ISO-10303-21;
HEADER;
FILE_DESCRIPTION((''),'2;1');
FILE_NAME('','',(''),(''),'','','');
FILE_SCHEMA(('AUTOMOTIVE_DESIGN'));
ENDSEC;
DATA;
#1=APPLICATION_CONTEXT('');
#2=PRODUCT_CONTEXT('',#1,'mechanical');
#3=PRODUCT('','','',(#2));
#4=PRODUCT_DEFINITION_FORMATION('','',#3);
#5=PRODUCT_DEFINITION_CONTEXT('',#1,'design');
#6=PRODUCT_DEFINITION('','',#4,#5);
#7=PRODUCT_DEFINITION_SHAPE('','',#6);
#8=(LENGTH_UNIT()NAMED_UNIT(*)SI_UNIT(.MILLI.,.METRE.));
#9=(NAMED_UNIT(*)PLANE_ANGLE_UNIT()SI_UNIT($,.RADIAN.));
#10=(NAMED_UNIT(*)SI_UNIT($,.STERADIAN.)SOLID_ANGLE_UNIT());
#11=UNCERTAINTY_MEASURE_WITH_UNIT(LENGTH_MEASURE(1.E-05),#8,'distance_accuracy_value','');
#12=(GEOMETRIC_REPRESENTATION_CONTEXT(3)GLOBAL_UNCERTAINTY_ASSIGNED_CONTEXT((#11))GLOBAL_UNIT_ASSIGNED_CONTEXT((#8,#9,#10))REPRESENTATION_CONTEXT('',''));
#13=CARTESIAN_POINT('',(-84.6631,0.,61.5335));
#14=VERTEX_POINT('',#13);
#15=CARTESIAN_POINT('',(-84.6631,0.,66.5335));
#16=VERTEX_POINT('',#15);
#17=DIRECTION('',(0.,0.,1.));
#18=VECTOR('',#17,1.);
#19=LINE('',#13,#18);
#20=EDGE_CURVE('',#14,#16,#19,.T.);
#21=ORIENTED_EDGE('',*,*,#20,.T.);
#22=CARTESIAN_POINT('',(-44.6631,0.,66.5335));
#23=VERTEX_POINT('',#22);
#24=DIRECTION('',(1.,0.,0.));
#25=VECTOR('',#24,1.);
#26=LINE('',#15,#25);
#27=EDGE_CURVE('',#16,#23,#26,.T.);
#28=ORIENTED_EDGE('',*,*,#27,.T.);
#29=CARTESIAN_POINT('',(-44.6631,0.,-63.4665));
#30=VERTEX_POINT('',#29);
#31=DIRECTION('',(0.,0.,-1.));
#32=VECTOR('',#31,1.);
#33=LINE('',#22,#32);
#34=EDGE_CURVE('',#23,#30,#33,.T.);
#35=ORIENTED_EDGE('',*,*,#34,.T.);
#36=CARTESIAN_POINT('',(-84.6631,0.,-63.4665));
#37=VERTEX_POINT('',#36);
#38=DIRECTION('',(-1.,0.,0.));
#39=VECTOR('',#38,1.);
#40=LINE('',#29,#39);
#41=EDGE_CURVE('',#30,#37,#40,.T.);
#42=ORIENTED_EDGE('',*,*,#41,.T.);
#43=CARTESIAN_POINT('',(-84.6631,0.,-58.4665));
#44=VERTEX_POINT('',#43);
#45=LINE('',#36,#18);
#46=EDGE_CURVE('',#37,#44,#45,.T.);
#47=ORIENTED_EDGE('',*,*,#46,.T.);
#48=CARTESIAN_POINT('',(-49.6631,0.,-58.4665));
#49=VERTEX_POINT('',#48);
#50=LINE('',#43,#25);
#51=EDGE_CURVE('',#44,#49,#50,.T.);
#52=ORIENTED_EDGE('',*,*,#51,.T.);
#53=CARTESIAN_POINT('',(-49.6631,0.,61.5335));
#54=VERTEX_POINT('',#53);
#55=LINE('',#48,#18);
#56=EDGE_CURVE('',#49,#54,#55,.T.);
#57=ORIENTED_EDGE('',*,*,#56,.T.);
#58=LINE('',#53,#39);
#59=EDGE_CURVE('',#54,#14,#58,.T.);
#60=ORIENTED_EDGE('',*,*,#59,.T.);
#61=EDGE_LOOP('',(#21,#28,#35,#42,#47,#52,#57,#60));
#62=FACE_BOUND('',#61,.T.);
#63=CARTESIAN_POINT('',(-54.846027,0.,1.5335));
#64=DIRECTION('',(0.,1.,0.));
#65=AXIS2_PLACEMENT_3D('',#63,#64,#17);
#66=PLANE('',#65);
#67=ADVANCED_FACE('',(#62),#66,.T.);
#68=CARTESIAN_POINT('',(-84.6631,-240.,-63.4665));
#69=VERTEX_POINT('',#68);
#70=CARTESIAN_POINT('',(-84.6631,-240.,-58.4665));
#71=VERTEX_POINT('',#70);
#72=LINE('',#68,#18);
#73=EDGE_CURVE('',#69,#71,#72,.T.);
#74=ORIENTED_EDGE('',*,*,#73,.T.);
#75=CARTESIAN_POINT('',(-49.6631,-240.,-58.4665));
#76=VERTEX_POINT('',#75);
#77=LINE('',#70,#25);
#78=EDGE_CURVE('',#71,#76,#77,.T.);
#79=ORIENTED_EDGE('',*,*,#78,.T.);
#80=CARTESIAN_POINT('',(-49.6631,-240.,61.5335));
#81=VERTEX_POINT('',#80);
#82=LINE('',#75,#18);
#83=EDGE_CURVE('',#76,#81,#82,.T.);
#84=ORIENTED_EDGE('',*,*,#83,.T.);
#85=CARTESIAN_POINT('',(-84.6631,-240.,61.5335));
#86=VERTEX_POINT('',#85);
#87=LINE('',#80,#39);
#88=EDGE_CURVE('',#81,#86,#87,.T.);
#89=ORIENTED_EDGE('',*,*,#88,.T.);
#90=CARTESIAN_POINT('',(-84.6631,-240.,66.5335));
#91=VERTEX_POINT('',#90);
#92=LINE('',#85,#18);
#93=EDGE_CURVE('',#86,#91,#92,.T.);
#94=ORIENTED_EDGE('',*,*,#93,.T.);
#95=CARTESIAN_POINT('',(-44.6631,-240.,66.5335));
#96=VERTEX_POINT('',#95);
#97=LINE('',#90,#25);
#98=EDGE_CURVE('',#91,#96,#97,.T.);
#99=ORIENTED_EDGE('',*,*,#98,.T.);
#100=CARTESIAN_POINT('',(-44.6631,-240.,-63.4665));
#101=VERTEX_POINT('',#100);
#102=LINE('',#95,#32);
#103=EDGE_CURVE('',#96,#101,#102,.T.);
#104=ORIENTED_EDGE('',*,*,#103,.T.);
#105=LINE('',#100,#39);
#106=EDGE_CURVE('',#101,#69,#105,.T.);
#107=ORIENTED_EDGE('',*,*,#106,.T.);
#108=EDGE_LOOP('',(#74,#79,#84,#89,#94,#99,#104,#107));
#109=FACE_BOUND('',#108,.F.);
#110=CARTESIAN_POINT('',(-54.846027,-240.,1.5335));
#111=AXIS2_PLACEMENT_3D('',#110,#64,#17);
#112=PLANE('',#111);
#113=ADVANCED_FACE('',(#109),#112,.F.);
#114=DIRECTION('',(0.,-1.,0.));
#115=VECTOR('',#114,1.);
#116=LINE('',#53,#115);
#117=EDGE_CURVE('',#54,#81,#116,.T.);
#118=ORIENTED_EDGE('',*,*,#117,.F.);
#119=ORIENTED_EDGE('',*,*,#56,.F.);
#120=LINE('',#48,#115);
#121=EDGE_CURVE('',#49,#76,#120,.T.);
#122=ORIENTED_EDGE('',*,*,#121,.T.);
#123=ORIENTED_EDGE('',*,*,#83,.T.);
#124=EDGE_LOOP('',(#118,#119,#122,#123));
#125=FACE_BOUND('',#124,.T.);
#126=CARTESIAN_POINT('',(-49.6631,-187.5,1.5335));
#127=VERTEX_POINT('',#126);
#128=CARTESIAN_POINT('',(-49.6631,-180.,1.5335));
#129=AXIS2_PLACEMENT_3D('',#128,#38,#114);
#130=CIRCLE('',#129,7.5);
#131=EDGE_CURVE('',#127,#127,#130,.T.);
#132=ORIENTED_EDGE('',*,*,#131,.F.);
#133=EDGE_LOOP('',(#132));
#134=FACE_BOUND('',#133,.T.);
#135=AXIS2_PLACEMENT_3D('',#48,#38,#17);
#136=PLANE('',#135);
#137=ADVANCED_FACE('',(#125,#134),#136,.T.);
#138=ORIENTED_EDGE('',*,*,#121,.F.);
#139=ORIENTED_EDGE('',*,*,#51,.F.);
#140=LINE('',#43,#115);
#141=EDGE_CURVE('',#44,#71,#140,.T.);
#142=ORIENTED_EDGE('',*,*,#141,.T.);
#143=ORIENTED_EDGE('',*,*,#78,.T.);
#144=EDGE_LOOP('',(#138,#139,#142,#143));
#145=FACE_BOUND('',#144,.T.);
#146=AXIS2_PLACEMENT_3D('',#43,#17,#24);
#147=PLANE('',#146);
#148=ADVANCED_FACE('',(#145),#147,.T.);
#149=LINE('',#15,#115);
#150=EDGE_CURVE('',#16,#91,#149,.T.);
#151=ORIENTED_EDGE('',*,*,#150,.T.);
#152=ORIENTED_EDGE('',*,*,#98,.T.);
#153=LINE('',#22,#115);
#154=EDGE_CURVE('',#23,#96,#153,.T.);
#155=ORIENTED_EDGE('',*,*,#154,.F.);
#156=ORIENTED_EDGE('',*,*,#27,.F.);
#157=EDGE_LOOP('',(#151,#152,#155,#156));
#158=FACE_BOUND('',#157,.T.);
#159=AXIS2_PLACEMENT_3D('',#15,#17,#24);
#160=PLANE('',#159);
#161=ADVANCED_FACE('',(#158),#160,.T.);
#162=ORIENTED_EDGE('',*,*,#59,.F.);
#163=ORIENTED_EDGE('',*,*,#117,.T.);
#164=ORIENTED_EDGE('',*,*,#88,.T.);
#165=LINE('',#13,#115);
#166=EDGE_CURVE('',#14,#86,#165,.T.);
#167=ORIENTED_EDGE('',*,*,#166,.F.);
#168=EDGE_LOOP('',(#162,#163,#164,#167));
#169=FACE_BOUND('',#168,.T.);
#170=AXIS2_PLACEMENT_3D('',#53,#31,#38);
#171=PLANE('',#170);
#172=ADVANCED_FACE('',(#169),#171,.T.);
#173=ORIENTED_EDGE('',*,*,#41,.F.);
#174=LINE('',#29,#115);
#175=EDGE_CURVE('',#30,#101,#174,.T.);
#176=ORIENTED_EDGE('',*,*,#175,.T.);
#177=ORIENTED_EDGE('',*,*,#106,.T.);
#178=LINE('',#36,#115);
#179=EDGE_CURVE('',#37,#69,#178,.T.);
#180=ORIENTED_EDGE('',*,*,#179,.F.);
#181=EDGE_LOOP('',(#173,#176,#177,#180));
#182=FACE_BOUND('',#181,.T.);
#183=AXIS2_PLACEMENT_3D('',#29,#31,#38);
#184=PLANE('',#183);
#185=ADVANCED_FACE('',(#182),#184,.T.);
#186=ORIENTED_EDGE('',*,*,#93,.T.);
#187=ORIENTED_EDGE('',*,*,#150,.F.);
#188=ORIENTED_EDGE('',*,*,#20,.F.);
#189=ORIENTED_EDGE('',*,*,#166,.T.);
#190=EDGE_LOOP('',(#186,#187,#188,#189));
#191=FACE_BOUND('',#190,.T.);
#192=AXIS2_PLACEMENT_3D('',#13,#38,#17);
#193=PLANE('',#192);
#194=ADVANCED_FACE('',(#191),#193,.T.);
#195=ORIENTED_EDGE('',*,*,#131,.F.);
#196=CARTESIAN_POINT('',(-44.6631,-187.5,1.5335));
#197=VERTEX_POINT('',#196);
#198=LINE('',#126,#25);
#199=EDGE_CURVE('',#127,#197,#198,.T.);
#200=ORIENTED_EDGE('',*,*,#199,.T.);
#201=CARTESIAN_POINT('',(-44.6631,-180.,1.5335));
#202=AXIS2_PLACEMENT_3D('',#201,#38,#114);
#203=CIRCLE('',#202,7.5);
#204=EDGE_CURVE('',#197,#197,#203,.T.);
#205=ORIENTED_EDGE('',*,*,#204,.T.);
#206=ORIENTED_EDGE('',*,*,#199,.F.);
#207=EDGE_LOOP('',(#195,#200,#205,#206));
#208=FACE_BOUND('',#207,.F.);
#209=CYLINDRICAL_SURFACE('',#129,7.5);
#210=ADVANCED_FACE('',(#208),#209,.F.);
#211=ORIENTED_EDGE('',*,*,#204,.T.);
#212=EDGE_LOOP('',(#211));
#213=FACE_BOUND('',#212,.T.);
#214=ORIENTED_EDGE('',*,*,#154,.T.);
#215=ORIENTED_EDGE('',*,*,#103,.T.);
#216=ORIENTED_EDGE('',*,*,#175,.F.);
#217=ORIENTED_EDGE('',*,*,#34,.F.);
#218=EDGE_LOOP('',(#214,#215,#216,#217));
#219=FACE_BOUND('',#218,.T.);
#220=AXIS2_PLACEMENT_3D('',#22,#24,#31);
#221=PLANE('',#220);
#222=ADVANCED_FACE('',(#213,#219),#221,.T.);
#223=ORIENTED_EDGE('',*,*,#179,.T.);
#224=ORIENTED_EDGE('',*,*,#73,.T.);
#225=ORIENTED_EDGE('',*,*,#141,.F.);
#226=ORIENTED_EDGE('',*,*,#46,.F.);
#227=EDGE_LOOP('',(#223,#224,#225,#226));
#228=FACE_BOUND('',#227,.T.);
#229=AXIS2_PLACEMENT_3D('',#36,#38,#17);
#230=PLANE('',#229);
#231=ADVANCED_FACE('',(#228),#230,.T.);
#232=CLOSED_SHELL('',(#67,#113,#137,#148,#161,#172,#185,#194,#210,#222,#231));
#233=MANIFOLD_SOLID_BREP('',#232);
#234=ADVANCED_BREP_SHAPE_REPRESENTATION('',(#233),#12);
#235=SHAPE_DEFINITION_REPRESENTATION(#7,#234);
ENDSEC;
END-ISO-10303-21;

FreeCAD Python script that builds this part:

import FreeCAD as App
import Part
import Sketcher

V = App.Vector

doc = App.newDocument("Part")
params = doc.addObject("Spreadsheet::Sheet", "Params")
for row, (alias, value) in enumerate([
    ("sketch1_width", "40 mm"),
    ("sketch1_width2", "35 mm"),
    ("sketch1_height", "5 mm"),
    ("sketch1_height2", "120 mm"),
    ("pad1_length", "240 mm"),
    ("sketch2_diameter", "15 mm"),
], start=1):
    params.set(f"A{row}", alias)
    params.set(f"B{row}", "=" + value)
    params.setAlias(f"B{row}", alias)

body = doc.addObject("PartDesign::Body", "Body")

# Sketch on XZ plane
sketch1 = doc.addObject("Sketcher::SketchObject", "Sketch")
body.addObject(sketch1)
sketch1.AttachmentSupport = (doc.XZ_Plane, [""])
sketch1.MapMode = "FlatFace"
sketch1.addGeometry([
    Part.LineSegment(V(-45, 67, 0), V(-85, 67, 0)),  # 0
    Part.LineSegment(V(-85, 67, 0), V(-85, 62, 0)),  # 1
    Part.LineSegment(V(-85, 62, 0), V(-50, 62, 0)),  # 2
    Part.LineSegment(V(-50, 62, 0), V(-50, -58, 0)),  # 3
    Part.LineSegment(V(-50, -58, 0), V(-85, -58, 0)),  # 4
    Part.LineSegment(V(-85, -58, 0), V(-85, -63, 0)),  # 5
    Part.LineSegment(V(-85, -63, 0), V(-45, -63, 0)),  # 6
    Part.LineSegment(V(-45, -63, 0), V(-45, 67, 0)),  # 7
], False)
sketch1.addConstraint([
    Sketcher.Constraint("Coincident", 0, 2, 1, 1),
    Sketcher.Constraint("Coincident", 1, 2, 2, 1),
    Sketcher.Constraint("Coincident", 2, 2, 3, 1),
    Sketcher.Constraint("Coincident", 3, 2, 4, 1),
    Sketcher.Constraint("Coincident", 4, 2, 5, 1),
    Sketcher.Constraint("Coincident", 5, 2, 6, 1),
    Sketcher.Constraint("Coincident", 6, 2, 7, 1),
    Sketcher.Constraint("Coincident", 7, 2, 0, 1),
    Sketcher.Constraint("Horizontal", 0),
    Sketcher.Constraint("Vertical", 1),
    Sketcher.Constraint("Horizontal", 2),
    Sketcher.Constraint("Vertical", 3),
    Sketcher.Constraint("Horizontal", 4),
    Sketcher.Constraint("Vertical", 5),
    Sketcher.Constraint("Horizontal", 6),
    Sketcher.Constraint("Vertical", 7),
    Sketcher.Constraint("Vertical", 1, 2, 4, 2),
    Sketcher.Constraint("Equal", 1, 5),
    Sketcher.Constraint("DistanceX", 0, 2, 0, 1, 40.0),
    Sketcher.Constraint("DistanceX", 2, 1, 2, 2, 35.0),
    Sketcher.Constraint("DistanceY", 1, 2, 1, 1, 5.0),
    Sketcher.Constraint("DistanceY", 3, 2, 3, 1, 120.0),
    Sketcher.Constraint("DistanceX", 0, 2, -1, 1, 84.663),
    Sketcher.Constraint("DistanceY", -1, 1, 0, 2, 66.5335),
])
sketch1.setExpression("Constraints[18]", "Params.sketch1_width")
sketch1.setExpression("Constraints[19]", "Params.sketch1_width2")
sketch1.setExpression("Constraints[20]", "Params.sketch1_height")
sketch1.setExpression("Constraints[21]", "Params.sketch1_height2")
pad1 = doc.addObject("PartDesign::Pad", "Pad")
body.addObject(pad1)
pad1.Profile = sketch1
pad1.setExpression("Length", "Params.pad1_length")

# Sketch on YZ plane
sketch2 = doc.addObject("Sketcher::SketchObject", "Sketch001")
body.addObject(sketch2)
sketch2.AttachmentSupport = (doc.YZ_Plane, [""])
sketch2.MapMode = "FlatFace"
sketch2.AttachmentOffset = App.Placement(V(0, 0, -49.6631), App.Rotation())
sketch2.addGeometry(Part.Circle(V(-180, 2, 0), V(0, 0, 1), 8), False)
sketch2.addConstraint([
    Sketcher.Constraint("Diameter", 0, 15.0),
    Sketcher.Constraint("DistanceX", 0, 3, -1, 1, 180.0),
    Sketcher.Constraint("DistanceY", -1, 1, 0, 3, 1.5335),
])
sketch2.setExpression("Constraints[0]", "Params.sketch2_diameter")
pocket1 = doc.addObject("PartDesign::Pocket", "Pocket")
body.addObject(pocket1)
pocket1.Profile = sketch2
pocket1.Type = "ThroughAll"
pocket1.Reversed = True

doc.recompute()
